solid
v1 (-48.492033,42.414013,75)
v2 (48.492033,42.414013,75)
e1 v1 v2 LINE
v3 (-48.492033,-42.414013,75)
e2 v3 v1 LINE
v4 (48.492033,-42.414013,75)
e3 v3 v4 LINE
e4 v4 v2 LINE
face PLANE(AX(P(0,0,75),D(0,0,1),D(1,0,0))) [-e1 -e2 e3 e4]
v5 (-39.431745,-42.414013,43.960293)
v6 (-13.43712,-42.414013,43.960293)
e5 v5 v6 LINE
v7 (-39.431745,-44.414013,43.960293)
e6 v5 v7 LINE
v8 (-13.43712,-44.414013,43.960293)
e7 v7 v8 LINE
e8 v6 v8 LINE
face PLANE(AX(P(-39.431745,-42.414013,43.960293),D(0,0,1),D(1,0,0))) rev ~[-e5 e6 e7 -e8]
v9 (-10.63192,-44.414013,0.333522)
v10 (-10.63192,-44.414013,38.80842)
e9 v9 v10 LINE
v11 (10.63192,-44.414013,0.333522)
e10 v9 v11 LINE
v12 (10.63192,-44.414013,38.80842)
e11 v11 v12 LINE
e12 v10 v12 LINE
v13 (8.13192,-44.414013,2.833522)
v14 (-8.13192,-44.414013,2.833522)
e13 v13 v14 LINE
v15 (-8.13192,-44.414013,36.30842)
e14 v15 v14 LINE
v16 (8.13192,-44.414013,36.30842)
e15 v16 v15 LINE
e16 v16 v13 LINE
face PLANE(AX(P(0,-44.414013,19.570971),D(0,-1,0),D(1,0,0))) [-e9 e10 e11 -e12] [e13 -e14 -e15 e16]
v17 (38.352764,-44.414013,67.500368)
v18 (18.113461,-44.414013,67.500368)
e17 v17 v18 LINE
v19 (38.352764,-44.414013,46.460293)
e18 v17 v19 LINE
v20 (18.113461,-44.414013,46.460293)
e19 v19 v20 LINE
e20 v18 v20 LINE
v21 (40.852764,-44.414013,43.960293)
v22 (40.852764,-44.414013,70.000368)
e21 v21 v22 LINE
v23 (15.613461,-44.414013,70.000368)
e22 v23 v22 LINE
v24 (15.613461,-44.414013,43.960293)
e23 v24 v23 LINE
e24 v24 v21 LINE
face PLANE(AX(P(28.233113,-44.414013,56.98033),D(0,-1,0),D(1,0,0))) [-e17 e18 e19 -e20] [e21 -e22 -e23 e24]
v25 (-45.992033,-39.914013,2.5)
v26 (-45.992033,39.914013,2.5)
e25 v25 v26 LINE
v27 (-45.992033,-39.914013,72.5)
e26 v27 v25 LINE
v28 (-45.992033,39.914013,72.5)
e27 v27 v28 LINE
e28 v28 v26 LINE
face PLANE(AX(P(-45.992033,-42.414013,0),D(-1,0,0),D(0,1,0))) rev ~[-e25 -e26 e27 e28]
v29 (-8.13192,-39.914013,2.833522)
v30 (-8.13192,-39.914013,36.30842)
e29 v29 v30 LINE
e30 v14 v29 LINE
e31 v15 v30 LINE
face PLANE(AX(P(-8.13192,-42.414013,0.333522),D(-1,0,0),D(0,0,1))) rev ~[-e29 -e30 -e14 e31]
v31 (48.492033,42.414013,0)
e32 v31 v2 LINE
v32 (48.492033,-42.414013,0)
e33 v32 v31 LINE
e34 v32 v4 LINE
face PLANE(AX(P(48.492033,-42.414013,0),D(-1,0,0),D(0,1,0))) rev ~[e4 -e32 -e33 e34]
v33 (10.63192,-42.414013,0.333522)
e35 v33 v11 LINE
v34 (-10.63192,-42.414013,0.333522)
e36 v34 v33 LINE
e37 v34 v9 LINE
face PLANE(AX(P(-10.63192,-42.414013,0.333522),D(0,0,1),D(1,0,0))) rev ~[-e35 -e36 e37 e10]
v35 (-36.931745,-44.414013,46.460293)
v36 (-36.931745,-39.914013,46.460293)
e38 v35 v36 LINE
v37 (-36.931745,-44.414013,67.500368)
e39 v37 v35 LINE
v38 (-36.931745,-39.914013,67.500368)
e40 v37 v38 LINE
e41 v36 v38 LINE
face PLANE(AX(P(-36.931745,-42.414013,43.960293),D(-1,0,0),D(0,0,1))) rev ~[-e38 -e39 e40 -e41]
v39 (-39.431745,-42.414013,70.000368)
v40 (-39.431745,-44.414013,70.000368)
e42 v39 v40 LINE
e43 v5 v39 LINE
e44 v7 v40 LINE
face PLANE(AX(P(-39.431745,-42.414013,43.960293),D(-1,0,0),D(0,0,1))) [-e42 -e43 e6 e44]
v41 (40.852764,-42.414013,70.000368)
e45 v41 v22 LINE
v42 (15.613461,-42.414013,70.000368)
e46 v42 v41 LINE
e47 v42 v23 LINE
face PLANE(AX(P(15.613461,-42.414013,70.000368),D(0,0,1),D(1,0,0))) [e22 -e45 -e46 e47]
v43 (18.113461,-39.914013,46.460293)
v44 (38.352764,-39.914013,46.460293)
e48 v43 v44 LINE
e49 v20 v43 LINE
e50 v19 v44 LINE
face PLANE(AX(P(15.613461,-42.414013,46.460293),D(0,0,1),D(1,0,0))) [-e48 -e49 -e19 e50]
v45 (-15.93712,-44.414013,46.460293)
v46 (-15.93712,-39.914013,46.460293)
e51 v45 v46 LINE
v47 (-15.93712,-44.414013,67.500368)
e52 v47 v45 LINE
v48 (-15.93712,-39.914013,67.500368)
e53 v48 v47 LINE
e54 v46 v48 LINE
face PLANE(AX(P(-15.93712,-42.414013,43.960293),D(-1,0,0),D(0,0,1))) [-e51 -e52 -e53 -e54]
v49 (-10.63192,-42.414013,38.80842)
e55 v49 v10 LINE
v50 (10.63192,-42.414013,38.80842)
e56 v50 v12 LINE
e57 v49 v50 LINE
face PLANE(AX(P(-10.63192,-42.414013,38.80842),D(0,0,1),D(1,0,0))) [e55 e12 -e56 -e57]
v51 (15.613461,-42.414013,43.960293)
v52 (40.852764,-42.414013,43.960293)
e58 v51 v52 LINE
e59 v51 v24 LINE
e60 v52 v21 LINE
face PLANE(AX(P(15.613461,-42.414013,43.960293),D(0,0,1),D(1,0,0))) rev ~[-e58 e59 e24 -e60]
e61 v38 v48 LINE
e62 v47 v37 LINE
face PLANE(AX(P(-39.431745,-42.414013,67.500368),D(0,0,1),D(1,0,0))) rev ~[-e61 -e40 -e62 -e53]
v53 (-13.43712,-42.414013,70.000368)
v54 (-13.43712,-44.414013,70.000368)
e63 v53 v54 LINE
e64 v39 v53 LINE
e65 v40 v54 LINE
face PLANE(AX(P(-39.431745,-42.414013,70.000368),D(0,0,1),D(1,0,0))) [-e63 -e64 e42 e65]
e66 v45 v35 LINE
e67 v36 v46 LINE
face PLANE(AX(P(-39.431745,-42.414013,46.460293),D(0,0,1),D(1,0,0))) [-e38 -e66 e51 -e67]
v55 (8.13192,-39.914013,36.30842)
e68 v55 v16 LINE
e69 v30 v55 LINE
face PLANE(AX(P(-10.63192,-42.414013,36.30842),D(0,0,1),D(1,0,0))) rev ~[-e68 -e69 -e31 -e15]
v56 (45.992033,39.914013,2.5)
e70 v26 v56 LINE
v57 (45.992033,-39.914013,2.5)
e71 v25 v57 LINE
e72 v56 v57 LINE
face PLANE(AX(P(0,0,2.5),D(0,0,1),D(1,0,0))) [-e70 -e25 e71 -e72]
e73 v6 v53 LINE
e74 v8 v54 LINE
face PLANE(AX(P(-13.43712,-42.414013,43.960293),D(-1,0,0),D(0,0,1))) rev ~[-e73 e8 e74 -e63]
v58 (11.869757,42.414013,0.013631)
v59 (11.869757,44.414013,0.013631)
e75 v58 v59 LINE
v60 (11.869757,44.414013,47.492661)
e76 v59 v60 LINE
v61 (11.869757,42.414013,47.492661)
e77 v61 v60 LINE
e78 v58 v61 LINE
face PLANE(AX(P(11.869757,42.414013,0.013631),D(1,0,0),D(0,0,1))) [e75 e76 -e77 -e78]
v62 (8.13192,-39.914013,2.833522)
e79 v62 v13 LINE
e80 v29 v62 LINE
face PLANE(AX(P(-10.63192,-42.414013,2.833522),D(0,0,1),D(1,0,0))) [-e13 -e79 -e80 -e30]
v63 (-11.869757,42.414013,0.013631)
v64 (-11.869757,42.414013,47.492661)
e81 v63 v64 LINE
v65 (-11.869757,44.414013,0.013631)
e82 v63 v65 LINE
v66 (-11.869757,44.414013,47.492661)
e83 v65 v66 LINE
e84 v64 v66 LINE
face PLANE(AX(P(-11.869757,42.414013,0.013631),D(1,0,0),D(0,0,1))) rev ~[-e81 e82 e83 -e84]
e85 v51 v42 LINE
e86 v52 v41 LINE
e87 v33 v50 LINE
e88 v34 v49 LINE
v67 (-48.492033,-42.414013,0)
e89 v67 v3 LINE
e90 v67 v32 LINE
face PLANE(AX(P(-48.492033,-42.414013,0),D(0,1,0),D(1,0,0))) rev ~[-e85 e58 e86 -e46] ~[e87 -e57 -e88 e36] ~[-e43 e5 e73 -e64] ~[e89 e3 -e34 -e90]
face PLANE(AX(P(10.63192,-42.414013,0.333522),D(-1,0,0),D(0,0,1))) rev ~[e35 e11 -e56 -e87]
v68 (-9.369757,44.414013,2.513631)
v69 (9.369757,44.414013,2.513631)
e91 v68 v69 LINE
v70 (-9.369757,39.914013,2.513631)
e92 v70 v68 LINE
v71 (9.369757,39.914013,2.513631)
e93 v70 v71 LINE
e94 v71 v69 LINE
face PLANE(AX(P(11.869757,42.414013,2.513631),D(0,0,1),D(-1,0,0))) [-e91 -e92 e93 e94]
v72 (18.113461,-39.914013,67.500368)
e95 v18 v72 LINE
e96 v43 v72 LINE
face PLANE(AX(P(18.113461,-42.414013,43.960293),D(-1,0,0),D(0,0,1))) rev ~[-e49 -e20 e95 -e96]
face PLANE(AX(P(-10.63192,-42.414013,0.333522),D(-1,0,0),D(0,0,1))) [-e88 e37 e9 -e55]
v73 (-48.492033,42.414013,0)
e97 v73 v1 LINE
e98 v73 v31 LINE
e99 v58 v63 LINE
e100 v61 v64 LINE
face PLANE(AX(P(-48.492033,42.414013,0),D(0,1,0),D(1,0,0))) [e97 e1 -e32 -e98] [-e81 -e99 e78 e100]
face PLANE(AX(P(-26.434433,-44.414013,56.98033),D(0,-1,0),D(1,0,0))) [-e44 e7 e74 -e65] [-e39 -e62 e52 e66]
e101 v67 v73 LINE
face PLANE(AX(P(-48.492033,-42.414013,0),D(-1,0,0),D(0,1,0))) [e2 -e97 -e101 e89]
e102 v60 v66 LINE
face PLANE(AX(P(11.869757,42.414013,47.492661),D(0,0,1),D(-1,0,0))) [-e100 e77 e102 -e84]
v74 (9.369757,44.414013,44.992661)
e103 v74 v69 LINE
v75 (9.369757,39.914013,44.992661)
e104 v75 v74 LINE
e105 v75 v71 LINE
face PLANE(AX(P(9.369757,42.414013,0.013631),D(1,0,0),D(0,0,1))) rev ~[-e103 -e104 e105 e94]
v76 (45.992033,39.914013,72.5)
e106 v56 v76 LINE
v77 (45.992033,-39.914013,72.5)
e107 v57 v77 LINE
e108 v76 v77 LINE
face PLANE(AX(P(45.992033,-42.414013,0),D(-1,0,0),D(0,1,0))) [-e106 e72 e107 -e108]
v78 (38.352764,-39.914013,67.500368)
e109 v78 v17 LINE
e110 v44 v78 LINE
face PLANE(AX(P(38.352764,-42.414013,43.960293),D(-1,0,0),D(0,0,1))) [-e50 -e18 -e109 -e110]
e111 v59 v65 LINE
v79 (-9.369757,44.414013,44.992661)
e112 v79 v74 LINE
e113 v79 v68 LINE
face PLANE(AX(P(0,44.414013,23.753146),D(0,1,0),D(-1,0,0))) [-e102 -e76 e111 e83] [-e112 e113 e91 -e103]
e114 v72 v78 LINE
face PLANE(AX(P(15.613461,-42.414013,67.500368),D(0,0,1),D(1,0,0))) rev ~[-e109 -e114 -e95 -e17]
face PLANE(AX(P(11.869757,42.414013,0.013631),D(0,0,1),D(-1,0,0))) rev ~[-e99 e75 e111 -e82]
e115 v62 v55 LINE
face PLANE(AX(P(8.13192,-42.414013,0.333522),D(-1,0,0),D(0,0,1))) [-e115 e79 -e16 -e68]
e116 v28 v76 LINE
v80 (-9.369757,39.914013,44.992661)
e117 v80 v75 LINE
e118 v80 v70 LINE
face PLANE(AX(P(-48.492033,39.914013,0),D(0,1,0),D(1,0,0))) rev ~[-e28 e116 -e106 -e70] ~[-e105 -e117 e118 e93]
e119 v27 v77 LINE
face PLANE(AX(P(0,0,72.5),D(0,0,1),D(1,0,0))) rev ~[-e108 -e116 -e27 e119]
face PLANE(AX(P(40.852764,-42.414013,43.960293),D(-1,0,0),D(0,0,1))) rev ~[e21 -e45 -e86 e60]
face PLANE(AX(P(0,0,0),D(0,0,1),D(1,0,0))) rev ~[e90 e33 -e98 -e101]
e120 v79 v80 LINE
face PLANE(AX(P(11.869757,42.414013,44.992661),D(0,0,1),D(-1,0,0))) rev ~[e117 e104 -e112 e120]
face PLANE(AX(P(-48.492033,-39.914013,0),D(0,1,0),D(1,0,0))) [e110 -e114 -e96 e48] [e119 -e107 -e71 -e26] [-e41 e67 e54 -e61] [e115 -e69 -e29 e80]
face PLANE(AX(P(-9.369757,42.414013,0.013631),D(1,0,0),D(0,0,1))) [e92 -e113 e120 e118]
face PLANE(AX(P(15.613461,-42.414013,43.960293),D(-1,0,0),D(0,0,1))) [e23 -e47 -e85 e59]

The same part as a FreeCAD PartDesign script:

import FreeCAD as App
import Part
import Sketcher


def faces_at(feature, points):
    """Names of the faces that lie closest to the given points."""
    faces = feature.Shape.Faces
    near = lambda p: min(range(len(faces)), key=lambda i: faces[i].distToShape(Part.Vertex(*p))[0])
    return sorted({f"Face{near(p) + 1}" for p in points})

doc = App.newDocument("Part")
body = doc.addObject("PartDesign::Body", "Body")

sketch1 = body.newObject("Sketcher::SketchObject", "Sketch")
sketch1.AttachmentSupport = (doc.getObject("XY_Plane"), [""])
sketch1.MapMode = "FlatFace"
sketch1.addGeometry([
    Part.LineSegment(App.Vector(-48, 42, 0), App.Vector(-48, -42, 0)),
    Part.LineSegment(App.Vector(-48, -42, 0), App.Vector(48, -42, 0)),
    Part.LineSegment(App.Vector(48, -42, 0), App.Vector(48, 42, 0)),
    Part.LineSegment(App.Vector(48, 42, 0), App.Vector(-48, 42, 0)),
], False)
sketch1.addConstraint([
    Sketcher.Constraint("Coincident", 0, 2, 1, 1),
    Sketcher.Constraint("Coincident", 1, 2, 2, 1),
    Sketcher.Constraint("Coincident", 2, 2, 3, 1),
    Sketcher.Constraint("Coincident", 3, 2, 0, 1),
    Sketcher.Constraint("Vertical", 0),
    Sketcher.Constraint("Horizontal", 1),
    Sketcher.Constraint("Vertical", 2),
    Sketcher.Constraint("Horizontal", 3),
    Sketcher.Constraint("Symmetric", 0, 2, 2, 2, -1, 1),
    Sketcher.Constraint("DistanceX", 1, 1, 1, 2, 96.984066),
    Sketcher.Constraint("DistanceY", 0, 2, 0, 1, 84.828027),
])
pad1 = body.newObject("PartDesign::Pad", "Pad")
pad1.Profile = sketch1
pad1.Length = 75

sketch2 = body.newObject("Sketcher::SketchObject", "Sketch001")
sketch2.AttachmentSupport = (doc.getObject("XZ_Plane"), [""])
sketch2.MapMode = "FlatFace"
sketch2.AttachmentOffset = App.Placement(App.Vector(0, 0, 42.414013), App.Rotation())
sketch2.addGeometry([
    Part.LineSegment(App.Vector(-11, 39, 0), App.Vector(-11, 0, 0)),
    Part.LineSegment(App.Vector(-11, 0, 0), App.Vector(11, 0, 0)),
    Part.LineSegment(App.Vector(11, 0, 0), App.Vector(11, 39, 0)),
    Part.LineSegment(App.Vector(11, 39, 0), App.Vector(-11, 39, 0)),
], False)
sketch2.addConstraint([
    Sketcher.Constraint("Coincident", 0, 2, 1, 1),
    Sketcher.Constraint("Coincident", 1, 2, 2, 1),
    Sketcher.Constraint("Coincident", 2, 2, 3, 1),
    Sketcher.Constraint("Coincident", 3, 2, 0, 1),
    Sketcher.Constraint("Vertical", 0),
    Sketcher.Constraint("Horizontal", 1),
    Sketcher.Constraint("Vertical", 2),
    Sketcher.Constraint("Horizontal", 3),
    Sketcher.Constraint("DistanceY", 0, 2, 0, 1, 38.474899),
    Sketcher.Constraint("DistanceX", 1, 1, 1, 2, 21.26384),
    Sketcher.Constraint("DistanceX", 0, 2, -1, 1, 10.63192),
    Sketcher.Constraint("DistanceY", -1, 1, 0, 2, 0.333522),
])
pad2 = body.newObject("PartDesign::Pad", "Pad001")
pad2.Profile = sketch2
pad2.Length = 2

sketch3 = body.newObject("Sketcher::SketchObject", "Sketch002")
sketch3.AttachmentSupport = (doc.getObject("XZ_Plane"), [""])
sketch3.MapMode = "FlatFace"
sketch3.AttachmentOffset = App.Placement(App.Vector(0, 0, 42.414013), App.Rotation())
sketch3.addGeometry([
    Part.LineSegment(App.Vector(-39, 70, 0), App.Vector(-39, 44, 0)),
    Part.LineSegment(App.Vector(-39, 44, 0), App.Vector(-13, 44, 0)),
    Part.LineSegment(App.Vector(-13, 44, 0), App.Vector(-13, 70, 0)),
    Part.LineSegment(App.Vector(-13, 70, 0), App.Vector(-39, 70, 0)),
    Part.LineSegment(App.Vector(16, 70, 0), App.Vector(16, 44, 0)),
    Part.LineSegment(App.Vector(16, 44, 0), App.Vector(41, 44, 0)),
    Part.LineSegment(App.Vector(41, 44, 0), App.Vector(41, 70, 0)),
    Part.LineSegment(App.Vector(41, 70, 0), App.Vector(16, 70, 0)),
], False)
sketch3.addConstraint([
    Sketcher.Constraint("Coincident", 0, 2, 1, 1),
    Sketcher.Constraint("Coincident", 1, 2, 2, 1),
    Sketcher.Constraint("Coincident", 2, 2, 3, 1),
    Sketcher.Constraint("Coincident", 3, 2, 0, 1),
    Sketcher.Constraint("Coincident", 4, 2, 5, 1),
    Sketcher.Constraint("Coincident", 5, 2, 6, 1),
    Sketcher.Constraint("Coincident", 6, 2, 7, 1),
    Sketcher.Constraint("Coincident", 7, 2, 4, 1),
    Sketcher.Constraint("Vertical", 0),
    Sketcher.Constraint("Horizontal", 1),
    Sketcher.Constraint("Vertical", 2),
    Sketcher.Constraint("Horizontal", 3),
    Sketcher.Constraint("Vertical", 4),
    Sketcher.Constraint("Horizontal", 5),
    Sketcher.Constraint("Vertical", 6),
    Sketcher.Constraint("Horizontal", 7),
    Sketcher.Constraint("Horizontal", 1, 2, 4, 2),
    Sketcher.Constraint("Horizontal", 3, 2, 6, 2),
    Sketcher.Constraint("DistanceX", 1, 1, 1, 2, 25.994625),
    Sketcher.Constraint("DistanceX", 5, 1, 5, 2, 25.239302),
    Sketcher.Constraint("DistanceY", 0, 2, 0, 1, 26.040075),
    Sketcher.Constraint("DistanceX", 1, 2, -1, 1, 13.43712),
    Sketcher.Constraint("DistanceY", -1, 1, 2, 2, 70.000368),
    Sketcher.Constraint("DistanceX", -1, 1, 4, 2, 15.613461),
])
pad3 = body.newObject("PartDesign::Pad", "Pad002")
pad3.Profile = sketch3
pad3.Length = 2

sketch4 = body.newObject("Sketcher::SketchObject", "Sketch003")
sketch4.AttachmentSupport = (doc.getObject("XZ_Plane"), [""])
sketch4.MapMode = "FlatFace"
sketch4.AttachmentOffset = App.Placement(App.Vector(0, 0, -42.414013), App.Rotation())
sketch4.addGeometry([
    Part.LineSegment(App.Vector(12, 47, 0), App.Vector(12, 0, 0)),
    Part.LineSegment(App.Vector(12, 0, 0), App.Vector(-12, 0, 0)),
    Part.LineSegment(App.Vector(-12, 0, 0), App.Vector(-12, 47, 0)),
    Part.LineSegment(App.Vector(-12, 47, 0), App.Vector(12, 47, 0)),
], False)
sketch4.addConstraint([
    Sketcher.Constraint("Coincident", 0, 2, 1, 1),
    Sketcher.Constraint("Coincident", 1, 2, 2, 1),
    Sketcher.Constraint("Coincident", 2, 2, 3, 1),
    Sketcher.Constraint("Coincident", 3, 2, 0, 1),
    Sketcher.Constraint("Vertical", 0),
    Sketcher.Constraint("Horizontal", 1),
    Sketcher.Constraint("Vertical", 2),
    Sketcher.Constraint("Horizontal", 3),
    Sketcher.Constraint("DistanceY", 0, 2, 0, 1, 47.47903),
    Sketcher.Constraint("DistanceX", 1, 2, 1, 1, 23.739513),
    Sketcher.Constraint("DistanceY", -1, 1, 0, 2, 0.013631),
    Sketcher.Constraint("DistanceX", -1, 1, 0, 2, 11.869757),
])
pad4 = body.newObject("PartDesign::Pad", "Pad003")
pad4.Profile = sketch4
pad4.Length = 2
pad4.Reversed = True
doc.recompute()

thickness = body.newObject("PartDesign::Thickness", "Thickness")
thickness.Base = (pad4, faces_at(pad4, [
    (0, 44.414, 23.753),
    (-26.434, -44.414, 56.98),
    (28.233, -44.414, 56.98),
    (0, -44.414, 19.571),
]))
thickness.Value = 2.5
thickness.Reversed = True
thickness.Join = "Intersection"

doc.recompute()
